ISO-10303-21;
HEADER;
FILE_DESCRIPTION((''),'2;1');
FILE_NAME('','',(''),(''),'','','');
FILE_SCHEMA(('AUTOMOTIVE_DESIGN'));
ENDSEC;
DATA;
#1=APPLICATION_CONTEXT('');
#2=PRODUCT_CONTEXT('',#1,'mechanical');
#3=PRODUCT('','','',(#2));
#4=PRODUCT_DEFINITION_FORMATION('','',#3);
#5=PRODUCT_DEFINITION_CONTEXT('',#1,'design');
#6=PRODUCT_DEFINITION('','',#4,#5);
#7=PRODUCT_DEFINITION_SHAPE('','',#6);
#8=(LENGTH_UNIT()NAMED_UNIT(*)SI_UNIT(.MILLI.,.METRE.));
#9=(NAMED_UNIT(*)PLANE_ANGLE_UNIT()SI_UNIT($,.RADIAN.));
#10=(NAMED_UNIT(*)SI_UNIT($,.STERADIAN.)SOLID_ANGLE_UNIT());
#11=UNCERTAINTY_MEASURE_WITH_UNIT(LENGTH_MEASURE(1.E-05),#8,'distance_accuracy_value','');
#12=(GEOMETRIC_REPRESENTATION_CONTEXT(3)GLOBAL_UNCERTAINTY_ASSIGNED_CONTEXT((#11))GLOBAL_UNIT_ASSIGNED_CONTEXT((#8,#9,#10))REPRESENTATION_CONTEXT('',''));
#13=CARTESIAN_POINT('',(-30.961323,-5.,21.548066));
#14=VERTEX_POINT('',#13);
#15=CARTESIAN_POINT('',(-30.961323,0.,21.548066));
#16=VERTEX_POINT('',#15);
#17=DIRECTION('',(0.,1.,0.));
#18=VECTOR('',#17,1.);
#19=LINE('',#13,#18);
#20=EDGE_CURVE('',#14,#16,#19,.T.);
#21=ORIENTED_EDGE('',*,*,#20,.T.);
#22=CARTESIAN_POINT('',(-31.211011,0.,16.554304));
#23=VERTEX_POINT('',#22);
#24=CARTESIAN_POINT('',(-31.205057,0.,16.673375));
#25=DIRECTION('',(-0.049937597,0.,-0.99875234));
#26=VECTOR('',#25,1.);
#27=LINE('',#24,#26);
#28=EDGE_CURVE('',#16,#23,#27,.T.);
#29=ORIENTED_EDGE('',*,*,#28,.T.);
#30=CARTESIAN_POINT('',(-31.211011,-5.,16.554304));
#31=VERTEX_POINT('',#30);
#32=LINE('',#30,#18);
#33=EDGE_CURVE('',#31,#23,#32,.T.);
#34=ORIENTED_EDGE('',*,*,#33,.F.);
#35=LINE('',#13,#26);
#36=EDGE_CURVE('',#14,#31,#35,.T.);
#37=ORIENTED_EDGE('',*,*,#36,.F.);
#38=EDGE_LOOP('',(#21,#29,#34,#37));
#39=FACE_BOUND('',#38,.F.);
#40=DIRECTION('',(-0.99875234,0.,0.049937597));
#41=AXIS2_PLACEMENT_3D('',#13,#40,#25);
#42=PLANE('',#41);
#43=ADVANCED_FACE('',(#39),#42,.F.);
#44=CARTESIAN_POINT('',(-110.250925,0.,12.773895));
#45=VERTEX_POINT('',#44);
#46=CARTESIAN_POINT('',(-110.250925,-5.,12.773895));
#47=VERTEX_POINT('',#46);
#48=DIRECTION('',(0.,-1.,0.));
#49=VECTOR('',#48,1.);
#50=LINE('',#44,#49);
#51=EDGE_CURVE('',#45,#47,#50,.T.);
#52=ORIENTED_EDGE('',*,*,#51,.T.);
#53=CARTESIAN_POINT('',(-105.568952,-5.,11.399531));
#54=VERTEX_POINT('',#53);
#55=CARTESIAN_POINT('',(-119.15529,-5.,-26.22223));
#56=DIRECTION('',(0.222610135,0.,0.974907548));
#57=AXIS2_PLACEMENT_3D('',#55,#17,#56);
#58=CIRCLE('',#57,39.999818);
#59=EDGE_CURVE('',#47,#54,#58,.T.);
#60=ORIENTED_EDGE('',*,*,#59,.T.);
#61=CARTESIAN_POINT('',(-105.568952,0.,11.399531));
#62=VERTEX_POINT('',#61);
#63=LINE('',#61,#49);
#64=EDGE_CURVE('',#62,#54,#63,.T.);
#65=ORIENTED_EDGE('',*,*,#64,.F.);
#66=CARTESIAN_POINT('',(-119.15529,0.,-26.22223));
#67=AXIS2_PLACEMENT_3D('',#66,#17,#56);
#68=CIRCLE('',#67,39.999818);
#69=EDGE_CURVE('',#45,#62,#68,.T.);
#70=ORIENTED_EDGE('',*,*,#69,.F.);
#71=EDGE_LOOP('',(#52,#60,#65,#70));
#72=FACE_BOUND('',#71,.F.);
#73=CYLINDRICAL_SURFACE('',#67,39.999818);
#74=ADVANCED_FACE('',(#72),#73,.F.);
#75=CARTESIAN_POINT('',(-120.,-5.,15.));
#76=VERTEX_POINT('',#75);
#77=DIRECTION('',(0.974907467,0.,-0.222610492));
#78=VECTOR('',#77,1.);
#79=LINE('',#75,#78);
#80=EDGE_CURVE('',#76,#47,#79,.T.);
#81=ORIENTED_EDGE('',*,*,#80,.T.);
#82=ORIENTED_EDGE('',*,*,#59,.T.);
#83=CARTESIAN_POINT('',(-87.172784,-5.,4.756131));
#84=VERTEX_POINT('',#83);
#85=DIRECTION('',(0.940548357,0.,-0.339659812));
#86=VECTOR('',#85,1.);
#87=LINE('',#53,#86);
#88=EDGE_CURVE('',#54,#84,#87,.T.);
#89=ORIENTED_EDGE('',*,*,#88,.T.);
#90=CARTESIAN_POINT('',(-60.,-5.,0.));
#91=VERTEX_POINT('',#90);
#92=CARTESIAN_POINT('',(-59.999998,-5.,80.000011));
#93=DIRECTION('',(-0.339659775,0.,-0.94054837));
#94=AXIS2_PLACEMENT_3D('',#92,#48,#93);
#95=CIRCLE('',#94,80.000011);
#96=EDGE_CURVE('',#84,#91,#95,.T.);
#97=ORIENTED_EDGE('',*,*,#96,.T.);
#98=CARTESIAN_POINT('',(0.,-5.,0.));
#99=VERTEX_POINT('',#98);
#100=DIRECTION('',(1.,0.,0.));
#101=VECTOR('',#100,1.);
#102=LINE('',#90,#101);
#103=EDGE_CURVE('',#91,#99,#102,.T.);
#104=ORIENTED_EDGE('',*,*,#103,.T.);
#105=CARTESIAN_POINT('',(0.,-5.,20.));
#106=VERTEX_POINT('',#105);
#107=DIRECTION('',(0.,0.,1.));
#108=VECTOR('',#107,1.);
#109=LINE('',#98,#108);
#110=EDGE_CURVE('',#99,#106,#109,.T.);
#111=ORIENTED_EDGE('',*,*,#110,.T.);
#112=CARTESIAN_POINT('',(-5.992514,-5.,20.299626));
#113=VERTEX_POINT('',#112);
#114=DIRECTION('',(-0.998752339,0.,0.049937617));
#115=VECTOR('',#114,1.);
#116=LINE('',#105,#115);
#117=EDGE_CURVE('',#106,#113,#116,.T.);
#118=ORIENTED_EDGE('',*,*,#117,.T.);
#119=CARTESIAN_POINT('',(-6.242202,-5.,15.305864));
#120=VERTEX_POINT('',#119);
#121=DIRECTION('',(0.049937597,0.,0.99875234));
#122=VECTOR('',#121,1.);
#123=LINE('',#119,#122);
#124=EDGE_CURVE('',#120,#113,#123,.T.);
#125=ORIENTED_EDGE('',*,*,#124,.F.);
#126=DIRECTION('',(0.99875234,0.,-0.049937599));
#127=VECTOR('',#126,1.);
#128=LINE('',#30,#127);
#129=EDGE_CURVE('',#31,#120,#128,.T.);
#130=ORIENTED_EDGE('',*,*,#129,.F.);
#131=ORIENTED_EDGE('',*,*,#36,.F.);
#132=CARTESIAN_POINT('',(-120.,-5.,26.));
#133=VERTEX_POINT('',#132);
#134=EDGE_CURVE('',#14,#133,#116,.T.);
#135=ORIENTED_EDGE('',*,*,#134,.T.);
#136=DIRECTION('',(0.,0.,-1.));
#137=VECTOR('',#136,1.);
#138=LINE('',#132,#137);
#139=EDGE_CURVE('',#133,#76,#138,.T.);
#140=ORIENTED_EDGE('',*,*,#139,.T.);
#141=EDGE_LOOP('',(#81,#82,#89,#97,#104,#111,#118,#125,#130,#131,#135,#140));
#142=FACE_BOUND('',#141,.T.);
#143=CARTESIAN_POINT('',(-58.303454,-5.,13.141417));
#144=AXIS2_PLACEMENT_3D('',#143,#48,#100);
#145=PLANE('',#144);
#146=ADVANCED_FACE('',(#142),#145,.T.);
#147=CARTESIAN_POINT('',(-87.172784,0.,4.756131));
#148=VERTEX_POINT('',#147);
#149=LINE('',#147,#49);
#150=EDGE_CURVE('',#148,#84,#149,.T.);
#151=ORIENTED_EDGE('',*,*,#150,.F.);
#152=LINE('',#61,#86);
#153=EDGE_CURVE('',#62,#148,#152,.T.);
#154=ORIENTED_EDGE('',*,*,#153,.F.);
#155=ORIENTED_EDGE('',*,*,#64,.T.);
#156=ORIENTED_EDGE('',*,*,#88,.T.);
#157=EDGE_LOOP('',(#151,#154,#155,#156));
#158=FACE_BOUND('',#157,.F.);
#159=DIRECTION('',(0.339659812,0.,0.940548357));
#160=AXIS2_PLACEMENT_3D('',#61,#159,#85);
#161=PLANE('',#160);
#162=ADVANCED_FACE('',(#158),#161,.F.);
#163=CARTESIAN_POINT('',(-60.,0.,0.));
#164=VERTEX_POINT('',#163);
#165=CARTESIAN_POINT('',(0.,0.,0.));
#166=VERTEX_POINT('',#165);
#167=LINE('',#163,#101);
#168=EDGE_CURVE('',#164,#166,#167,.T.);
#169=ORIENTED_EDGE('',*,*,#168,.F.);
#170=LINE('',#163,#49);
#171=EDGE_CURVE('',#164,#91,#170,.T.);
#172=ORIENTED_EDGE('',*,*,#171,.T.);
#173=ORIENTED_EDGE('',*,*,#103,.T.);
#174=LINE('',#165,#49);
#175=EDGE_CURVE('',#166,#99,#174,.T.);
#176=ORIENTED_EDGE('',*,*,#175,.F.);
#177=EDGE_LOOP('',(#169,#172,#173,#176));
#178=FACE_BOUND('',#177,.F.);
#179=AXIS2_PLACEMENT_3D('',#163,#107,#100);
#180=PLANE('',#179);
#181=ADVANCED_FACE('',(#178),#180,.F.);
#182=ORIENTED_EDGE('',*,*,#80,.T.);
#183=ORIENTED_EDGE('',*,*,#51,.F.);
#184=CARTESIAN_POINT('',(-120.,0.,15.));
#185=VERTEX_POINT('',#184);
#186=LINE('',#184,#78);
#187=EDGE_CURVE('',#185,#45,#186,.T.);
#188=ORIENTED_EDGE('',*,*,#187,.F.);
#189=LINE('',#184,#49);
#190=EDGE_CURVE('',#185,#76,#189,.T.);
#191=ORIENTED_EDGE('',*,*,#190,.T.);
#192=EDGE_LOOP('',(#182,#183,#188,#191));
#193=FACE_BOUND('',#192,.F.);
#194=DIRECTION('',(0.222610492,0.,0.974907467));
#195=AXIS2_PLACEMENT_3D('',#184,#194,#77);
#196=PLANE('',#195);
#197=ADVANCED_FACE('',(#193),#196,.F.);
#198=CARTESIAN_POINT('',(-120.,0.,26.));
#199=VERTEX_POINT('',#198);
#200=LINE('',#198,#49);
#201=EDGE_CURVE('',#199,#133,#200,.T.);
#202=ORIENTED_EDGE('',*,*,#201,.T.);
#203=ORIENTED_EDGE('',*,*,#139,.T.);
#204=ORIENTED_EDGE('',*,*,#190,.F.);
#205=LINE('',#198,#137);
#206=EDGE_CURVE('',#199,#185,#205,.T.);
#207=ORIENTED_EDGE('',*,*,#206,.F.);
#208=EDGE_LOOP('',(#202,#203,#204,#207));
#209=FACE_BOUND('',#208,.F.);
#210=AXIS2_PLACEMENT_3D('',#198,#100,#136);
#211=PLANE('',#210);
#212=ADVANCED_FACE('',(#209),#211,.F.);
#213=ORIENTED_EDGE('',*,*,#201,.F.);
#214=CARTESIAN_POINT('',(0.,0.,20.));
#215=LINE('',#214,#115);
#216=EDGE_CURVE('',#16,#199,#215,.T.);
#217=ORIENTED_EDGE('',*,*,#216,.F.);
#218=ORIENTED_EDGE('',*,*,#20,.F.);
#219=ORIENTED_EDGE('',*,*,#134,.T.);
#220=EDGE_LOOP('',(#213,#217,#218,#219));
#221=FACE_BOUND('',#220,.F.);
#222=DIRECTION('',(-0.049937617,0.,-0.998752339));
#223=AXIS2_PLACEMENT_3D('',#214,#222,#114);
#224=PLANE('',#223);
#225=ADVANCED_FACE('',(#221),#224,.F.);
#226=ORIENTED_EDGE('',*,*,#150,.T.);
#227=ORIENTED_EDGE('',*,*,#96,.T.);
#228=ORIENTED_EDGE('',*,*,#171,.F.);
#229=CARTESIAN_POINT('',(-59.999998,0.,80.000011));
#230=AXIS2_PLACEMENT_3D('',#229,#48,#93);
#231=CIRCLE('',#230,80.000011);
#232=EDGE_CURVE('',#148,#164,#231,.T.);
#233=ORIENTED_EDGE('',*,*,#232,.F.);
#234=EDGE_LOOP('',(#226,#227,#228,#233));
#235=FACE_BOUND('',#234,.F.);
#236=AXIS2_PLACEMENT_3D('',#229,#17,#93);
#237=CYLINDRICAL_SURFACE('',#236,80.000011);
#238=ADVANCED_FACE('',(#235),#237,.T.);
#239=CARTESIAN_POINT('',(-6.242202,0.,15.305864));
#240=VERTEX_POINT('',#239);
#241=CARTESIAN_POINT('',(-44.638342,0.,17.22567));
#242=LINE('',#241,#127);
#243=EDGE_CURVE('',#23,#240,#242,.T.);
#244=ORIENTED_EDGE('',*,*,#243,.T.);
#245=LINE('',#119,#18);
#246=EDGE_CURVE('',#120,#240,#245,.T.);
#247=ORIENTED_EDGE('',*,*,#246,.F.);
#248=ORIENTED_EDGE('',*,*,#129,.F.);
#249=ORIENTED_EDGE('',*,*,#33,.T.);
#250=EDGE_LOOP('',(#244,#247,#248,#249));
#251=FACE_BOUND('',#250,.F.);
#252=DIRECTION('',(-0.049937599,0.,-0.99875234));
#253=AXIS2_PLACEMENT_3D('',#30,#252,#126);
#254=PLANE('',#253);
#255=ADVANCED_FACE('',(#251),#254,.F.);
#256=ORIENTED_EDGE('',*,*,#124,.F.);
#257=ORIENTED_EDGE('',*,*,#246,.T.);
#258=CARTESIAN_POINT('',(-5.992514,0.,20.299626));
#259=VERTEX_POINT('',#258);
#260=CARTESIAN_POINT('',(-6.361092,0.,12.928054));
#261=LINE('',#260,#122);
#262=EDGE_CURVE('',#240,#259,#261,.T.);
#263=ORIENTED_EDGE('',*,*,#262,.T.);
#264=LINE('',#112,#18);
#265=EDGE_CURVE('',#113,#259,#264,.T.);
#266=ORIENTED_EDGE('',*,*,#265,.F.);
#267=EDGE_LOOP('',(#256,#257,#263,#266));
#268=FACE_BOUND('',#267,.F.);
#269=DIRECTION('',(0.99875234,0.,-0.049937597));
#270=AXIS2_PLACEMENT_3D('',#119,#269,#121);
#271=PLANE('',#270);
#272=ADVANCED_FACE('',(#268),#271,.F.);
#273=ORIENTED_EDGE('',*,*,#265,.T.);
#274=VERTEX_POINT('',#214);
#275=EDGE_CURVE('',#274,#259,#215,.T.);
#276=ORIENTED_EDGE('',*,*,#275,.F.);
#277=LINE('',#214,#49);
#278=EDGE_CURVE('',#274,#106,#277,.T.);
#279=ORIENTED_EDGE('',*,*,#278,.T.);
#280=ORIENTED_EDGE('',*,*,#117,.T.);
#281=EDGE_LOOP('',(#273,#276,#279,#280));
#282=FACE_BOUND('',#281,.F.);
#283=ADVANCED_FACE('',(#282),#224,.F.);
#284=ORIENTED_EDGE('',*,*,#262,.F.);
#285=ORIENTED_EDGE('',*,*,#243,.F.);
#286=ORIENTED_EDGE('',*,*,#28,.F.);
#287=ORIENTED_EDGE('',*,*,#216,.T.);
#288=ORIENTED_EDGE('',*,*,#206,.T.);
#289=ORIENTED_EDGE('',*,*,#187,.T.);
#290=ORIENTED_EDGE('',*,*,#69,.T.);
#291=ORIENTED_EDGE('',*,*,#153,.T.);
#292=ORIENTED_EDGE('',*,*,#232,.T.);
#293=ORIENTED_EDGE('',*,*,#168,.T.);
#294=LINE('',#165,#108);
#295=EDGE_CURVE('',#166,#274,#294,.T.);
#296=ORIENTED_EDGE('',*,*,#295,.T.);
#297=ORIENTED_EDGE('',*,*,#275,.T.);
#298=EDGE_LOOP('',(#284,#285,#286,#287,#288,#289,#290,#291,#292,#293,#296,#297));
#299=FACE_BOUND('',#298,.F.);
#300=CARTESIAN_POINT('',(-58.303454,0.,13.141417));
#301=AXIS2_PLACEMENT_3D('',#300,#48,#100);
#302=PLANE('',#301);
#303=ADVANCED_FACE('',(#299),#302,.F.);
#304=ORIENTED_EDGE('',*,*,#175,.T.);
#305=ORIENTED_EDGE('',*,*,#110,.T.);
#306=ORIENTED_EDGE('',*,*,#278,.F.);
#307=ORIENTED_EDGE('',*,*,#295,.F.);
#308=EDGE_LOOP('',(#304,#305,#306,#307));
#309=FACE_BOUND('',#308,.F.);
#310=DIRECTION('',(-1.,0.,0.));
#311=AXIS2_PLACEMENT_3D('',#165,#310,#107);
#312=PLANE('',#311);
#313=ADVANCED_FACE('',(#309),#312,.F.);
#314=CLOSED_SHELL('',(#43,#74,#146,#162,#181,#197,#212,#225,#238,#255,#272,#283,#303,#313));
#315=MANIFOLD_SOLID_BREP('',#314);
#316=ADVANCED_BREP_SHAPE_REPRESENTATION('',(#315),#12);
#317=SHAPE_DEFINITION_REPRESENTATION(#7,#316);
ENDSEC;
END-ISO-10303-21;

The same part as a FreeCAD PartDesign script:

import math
import FreeCAD as App
import Part
import Sketcher

V = App.Vector
Q = App.Units.Quantity

doc = App.newDocument("Part")
body = doc.addObject("PartDesign::Body", "Body")

# Sketch on XZ plane
sketch1 = doc.addObject("Sketcher::SketchObject", "Sketch")
body.addObject(sketch1)
sketch1.AttachmentSupport = (doc.XZ_Plane, [""])
sketch1.MapMode = "FlatFace"
sketch1.addGeometry([
    Part.LineSegment(V(0, 20, 0), V(-120, 26, 0)),  # 0
    Part.LineSegment(V(-120, 26, 0), V(-120, 15, 0)),  # 1
    Part.LineSegment(V(-120, 15, 0), V(-110.3, 12.8, 0)),  # 2
    Part.ArcOfCircle(Part.Circle(V(-119.2, -26.2, 0), V(0, 0, 1), 40), math.radians(70.14), math.radians(77.14)),  # 3
    Part.LineSegment(V(-105.6, 11.4, 0), V(-87.2, 4.8, 0)),  # 4
    Part.ArcOfCircle(Part.Circle(V(-60, 80, 0), V(0, 0, 1), 80), math.radians(-109.86), math.radians(-90)),  # 5
    Part.LineSegment(V(-60, 0, 0), V(0, 0, 0)),  # 6
    Part.LineSegment(V(0, 0, 0), V(0, 20, 0)),  # 7
], False)
sketch1.addConstraint([
    Sketcher.Constraint("Coincident", 0, 2, 1, 1),
    Sketcher.Constraint("Coincident", 1, 2, 2, 1),
    Sketcher.Constraint("Tangent", 2, 2, 3, 2),
    Sketcher.Constraint("Tangent", 3, 1, 4, 1),
    Sketcher.Constraint("Tangent", 4, 2, 5, 1),
    Sketcher.Constraint("Tangent", 5, 2, 6, 1),
    Sketcher.Constraint("Coincident", 6, 2, 7, 1),
    Sketcher.Constraint("Coincident", 7, 2, 0, 1),
    Sketcher.Constraint("Vertical", 1),
    Sketcher.Constraint("Horizontal", 6),
    Sketcher.Constraint("Vertical", 7),
    Sketcher.Constraint("Coincident", 6, 2, -1, 1),
    Sketcher.Constraint("DistanceX", 6, 1, 6, 2, Q("60 mm")),
    Sketcher.Constraint("DistanceY", 1, 2, 1, 1, Q("11 mm")),
    Sketcher.Constraint("DistanceY", 7, 1, 7, 2, Q("20 mm")),
    Sketcher.Constraint("Distance", 2, Q("10 mm")),
    Sketcher.Constraint("DistanceX", 0, 2, -1, 1, Q("120 mm")),
    Sketcher.Constraint("DistanceY", -1, 1, 0, 2, Q("26 mm")),
    Sketcher.Constraint("Radius", 3, Q("39.999818 mm")),
    Sketcher.Constraint("Radius", 5, Q("80.000011 mm")),
    Sketcher.Constraint("DistanceY", 4, 2, 3, 1, Q("6.6434 mm")),
])
pad1 = doc.addObject("PartDesign::Pad", "Pad")
body.addObject(pad1)
pad1.Profile = sketch1
pad1.Length = 5

# Sketch on XZ plane
sketch2 = doc.addObject("Sketcher::SketchObject", "Sketch001")
body.addObject(sketch2)
sketch2.AttachmentSupport = (doc.XZ_Plane, [""])
sketch2.MapMode = "FlatFace"
sketch2.AttachmentOffset = App.Placement(V(0, 0, 5), App.Rotation())
sketch2.addGeometry([
    Part.LineSegment(V(-6, 15, 0), V(-6, 20, 0)),
    Part.LineSegment(V(-6, 20, 0), V(-31, 22, 0)),
    Part.LineSegment(V(-31, 22, 0), V(-31, 17, 0)),
    Part.LineSegment(V(-31, 17, 0), V(-6, 15, 0)),
], False)
sketch2.addConstraint([
    Sketcher.Constraint("Coincident", 0, 2, 1, 1),
    Sketcher.Constraint("Coincident", 1, 2, 2, 1),
    Sketcher.Constraint("Coincident", 2, 2, 3, 1),
    Sketcher.Constraint("Coincident", 3, 2, 0, 1),
    Sketcher.Constraint("Perpendicular", 0, 1),
    Sketcher.Constraint("Perpendicular", 1, 2),
    Sketcher.Constraint("Perpendicular", 2, 3),
    Sketcher.Constraint("Distance", 0, Q("5 mm")),
    Sketcher.Constraint("Distance", 1, Q("25.000001 mm")),
    Sketcher.Constraint("DistanceX", 3, 2, -1, 1, Q("6.242202 mm")),
    Sketcher.Constraint("DistanceY", 3, 2, 1, 2, Q("6.242202 mm")),
    Sketcher.Constraint("DistanceY", -1, 1, 0, 2, Q("20.299626 mm")),
])
pocket1 = doc.addObject("PartDesign::Pocket", "Pocket")
body.addObject(pocket1)
pocket1.Profile = sketch2
pocket1.Length = 25

doc.recompute()
